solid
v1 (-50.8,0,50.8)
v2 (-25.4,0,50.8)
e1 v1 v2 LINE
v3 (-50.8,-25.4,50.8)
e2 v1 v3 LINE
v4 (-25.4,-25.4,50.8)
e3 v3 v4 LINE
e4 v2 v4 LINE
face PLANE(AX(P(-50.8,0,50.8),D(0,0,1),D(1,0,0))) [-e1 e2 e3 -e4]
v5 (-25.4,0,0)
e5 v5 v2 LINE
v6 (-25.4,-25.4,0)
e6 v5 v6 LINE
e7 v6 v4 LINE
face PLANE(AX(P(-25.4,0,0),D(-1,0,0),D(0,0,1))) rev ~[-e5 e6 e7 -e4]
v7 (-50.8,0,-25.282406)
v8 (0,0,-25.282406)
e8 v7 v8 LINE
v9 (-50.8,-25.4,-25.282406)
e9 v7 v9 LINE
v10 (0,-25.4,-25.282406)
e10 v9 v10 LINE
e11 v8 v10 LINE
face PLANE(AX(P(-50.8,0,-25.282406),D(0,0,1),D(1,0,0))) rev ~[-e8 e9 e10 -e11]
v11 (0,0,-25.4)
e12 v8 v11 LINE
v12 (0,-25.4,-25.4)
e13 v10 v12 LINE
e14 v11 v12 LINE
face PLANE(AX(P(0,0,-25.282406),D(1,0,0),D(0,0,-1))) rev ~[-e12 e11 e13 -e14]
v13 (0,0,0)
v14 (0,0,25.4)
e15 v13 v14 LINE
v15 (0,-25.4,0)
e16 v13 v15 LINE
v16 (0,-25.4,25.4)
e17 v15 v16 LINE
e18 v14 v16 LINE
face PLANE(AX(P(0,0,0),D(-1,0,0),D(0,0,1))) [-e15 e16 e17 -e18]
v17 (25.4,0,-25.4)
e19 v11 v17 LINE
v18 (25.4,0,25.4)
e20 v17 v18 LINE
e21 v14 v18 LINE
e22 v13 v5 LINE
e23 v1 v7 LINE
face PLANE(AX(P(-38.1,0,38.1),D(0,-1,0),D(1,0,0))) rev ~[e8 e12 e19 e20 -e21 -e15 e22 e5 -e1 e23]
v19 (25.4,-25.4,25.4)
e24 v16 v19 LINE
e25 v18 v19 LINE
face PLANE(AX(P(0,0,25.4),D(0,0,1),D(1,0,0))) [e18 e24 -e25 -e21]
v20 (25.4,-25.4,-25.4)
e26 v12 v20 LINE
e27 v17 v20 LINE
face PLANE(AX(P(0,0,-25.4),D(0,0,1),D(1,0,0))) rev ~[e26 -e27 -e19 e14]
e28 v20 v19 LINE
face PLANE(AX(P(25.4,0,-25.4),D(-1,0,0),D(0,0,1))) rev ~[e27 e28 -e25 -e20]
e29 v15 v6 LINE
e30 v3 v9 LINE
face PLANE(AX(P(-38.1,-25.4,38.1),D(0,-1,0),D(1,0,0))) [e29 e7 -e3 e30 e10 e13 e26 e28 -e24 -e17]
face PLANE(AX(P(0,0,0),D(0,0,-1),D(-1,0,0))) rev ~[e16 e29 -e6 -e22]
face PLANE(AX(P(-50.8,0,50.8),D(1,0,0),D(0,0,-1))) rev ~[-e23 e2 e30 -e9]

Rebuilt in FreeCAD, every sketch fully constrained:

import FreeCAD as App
import Part
import Sketcher
from FreeCAD import Vector
Q = App.Units.Quantity


def add_polygon(sketch, points):
    """Adds a closed chain of lines whose ends are joined by coincident constraints."""
    first, n = sketch.GeometryCount, len(points)
    for a, b in zip(points, points[1:] + points[:1]):
        sketch.addGeometry(Part.LineSegment(App.Vector(*a, 0), App.Vector(*b, 0)), False)
    for i in range(n):
        sketch.addConstraint(Sketcher.Constraint("Coincident", first + i, 2, first + (i + 1) % n, 1))

doc = App.newDocument("Part")
body = doc.addObject("PartDesign::Body", "Body")

# Sketch on XZ plane
sketch1 = doc.addObject("Sketcher::SketchObject", "Sketch")
body.addObject(sketch1)
sketch1.AttachmentSupport = (doc.XZ_Plane, [""])
sketch1.MapMode = "FlatFace"
add_polygon(sketch1, [(-50.8, 50.8), (-50.8, -25.28), (0, -25.28), (0, -25.4), (25.4, -25.4), (25.4, 25.4), (0, 25.4), (0, 0), (-25.4, 0), (-25.4, 50.8)])  # lines 0-9
sketch1.addConstraint([
    Sketcher.Constraint("Vertical", 0),
    Sketcher.Constraint("Horizontal", 1),
    Sketcher.Constraint("Vertical", 2),
    Sketcher.Constraint("Horizontal", 3),
    Sketcher.Constraint("Vertical", 4),
    Sketcher.Constraint("Horizontal", 5),
    Sketcher.Constraint("Vertical", 6),
    Sketcher.Constraint("Horizontal", 7),
    Sketcher.Constraint("Vertical", 8),
    Sketcher.Constraint("Horizontal", 9),
    Sketcher.Constraint("Coincident", 6, 2, -1, 1),
    Sketcher.Constraint("Symmetric", 2, 2, 5, 2, -1, 1),
    Sketcher.Constraint("Equal", 5, 7),
    Sketcher.Constraint("Equal", 7, 9),
    Sketcher.Constraint("Equal", 1, 4),
    Sketcher.Constraint("Equal", 4, 8),
    Sketcher.Constraint("DistanceX", 1, 1, 1, 2, Q("2 in")),
    Sketcher.Constraint("DistanceY", 0, 2, 0, 1, Q("76.082406 mm")),
])
pad1 = doc.addObject("PartDesign::Pad", "Pad")
body.addObject(pad1)
pad1.Profile = sketch1
pad1.Length = Q("1 in")

doc.recompute()
